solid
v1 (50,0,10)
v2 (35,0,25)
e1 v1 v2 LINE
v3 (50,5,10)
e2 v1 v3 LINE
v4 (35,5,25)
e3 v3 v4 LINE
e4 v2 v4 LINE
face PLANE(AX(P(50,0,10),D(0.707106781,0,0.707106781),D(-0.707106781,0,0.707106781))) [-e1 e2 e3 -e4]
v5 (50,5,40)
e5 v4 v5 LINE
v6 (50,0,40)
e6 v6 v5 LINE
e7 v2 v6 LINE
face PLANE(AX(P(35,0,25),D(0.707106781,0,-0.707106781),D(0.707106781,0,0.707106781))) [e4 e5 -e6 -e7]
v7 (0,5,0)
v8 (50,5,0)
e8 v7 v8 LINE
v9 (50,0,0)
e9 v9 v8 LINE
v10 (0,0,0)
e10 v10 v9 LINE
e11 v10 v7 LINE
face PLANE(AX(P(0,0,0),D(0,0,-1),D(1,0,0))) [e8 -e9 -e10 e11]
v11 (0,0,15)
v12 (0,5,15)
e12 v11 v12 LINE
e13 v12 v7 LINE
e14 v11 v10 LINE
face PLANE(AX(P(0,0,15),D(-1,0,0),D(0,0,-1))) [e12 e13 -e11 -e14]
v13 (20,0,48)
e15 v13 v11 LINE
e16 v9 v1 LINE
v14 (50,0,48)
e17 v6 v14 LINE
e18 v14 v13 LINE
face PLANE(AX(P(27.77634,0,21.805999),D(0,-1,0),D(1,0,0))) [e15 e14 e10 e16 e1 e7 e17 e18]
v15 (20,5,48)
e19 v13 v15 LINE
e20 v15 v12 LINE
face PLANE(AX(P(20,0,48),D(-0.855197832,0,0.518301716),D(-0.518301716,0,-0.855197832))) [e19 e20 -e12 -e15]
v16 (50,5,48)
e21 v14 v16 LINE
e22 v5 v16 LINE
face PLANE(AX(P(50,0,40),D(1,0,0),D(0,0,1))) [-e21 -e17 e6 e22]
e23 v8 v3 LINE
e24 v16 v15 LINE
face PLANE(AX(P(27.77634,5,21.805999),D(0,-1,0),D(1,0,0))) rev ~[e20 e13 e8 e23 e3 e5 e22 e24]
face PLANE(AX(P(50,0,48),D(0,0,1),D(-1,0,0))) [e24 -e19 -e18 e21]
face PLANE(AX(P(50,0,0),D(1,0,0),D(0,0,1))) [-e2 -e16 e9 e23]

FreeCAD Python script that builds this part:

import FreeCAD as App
import Part
import Sketcher
Q = App.Units.Quantity


def add_polygon(sketch, points):
    """Adds a closed chain of lines whose ends are joined by coincident constraints."""
    first, n = sketch.GeometryCount, len(points)
    for a, b in zip(points, points[1:] + points[:1]):
        sketch.addGeometry(Part.LineSegment(App.Vector(*a, 0), App.Vector(*b, 0)), False)
    for i in range(n):
        sketch.addConstraint(Sketcher.Constraint("Coincident", first + i, 2, first + (i + 1) % n, 1))

doc = App.newDocument("Part")
params = doc.addObject("Spreadsheet::Sheet", "Params")
for row, (alias, value) in enumerate([
    ("sketch1_width", "50 mm"),
    ("sketch1_width2", "30 mm"),
    ("sketch1_height", "15 mm"),
    ("sketch1_height2", "10 mm"),
    ("sketch1_height3", "8 mm"),
    ("pad1_length", "5 mm"),
], start=1):
    params.set(f"A{row}", alias)
    params.set(f"B{row}", "=" + value)
    params.setAlias(f"B{row}", alias)

body = doc.addObject("PartDesign::Body", "Body")

sketch1 = body.newObject("Sketcher::SketchObject", "Sketch")
sketch1.AttachmentSupport = (doc.getObject("XZ_Plane"), [""])
sketch1.MapMode = "FlatFace"
add_polygon(sketch1, [(0, 15), (0, 0), (50, 0), (50, 10), (35, 25), (50, 40), (50, 48), (20, 48)])
sketch1.addConstraint([
    Sketcher.Constraint("Vertical", 0),
    Sketcher.Constraint("Horizontal", 1),
    Sketcher.Constraint("Vertical", 2),
    Sketcher.Constraint("Vertical", 5),
    Sketcher.Constraint("Horizontal", 6),
    Sketcher.Constraint("Coincident", 0, 2, -1, 1),
    Sketcher.Constraint("Perpendicular", 3, 4),
    Sketcher.Constraint("Vertical", 2, 2, 4, 2),
    Sketcher.Constraint("Equal", 3, 4),
    Sketcher.Constraint("DistanceX", 1, 1, 1, 2, Q("50 mm")),
    Sketcher.Constraint("DistanceX", 6, 2, 6, 1, Q("30 mm")),
    Sketcher.Constraint("DistanceY", 0, 2, 0, 1, Q("15 mm")),
    Sketcher.Constraint("DistanceY", 2, 1, 2, 2, Q("10 mm")),
    Sketcher.Constraint("DistanceY", 5, 1, 5, 2, Q("8 mm")),
    Sketcher.Constraint("DistanceX", -1, 1, 3, 2, Q("35 mm")),
])
sketch1.setExpression("Constraints[17]", "Params.sketch1_width")
sketch1.setExpression("Constraints[18]", "Params.sketch1_width2")
sketch1.setExpression("Constraints[19]", "Params.sketch1_height")
sketch1.setExpression("Constraints[20]", "Params.sketch1_height2")
sketch1.setExpression("Constraints[21]", "Params.sketch1_height3")
pad1 = body.newObject("PartDesign::Pad", "Pad")
pad1.Profile = sketch1
pad1.setExpression("Length", "Params.pad1_length")
pad1.Reversed = True

doc.recompute()
